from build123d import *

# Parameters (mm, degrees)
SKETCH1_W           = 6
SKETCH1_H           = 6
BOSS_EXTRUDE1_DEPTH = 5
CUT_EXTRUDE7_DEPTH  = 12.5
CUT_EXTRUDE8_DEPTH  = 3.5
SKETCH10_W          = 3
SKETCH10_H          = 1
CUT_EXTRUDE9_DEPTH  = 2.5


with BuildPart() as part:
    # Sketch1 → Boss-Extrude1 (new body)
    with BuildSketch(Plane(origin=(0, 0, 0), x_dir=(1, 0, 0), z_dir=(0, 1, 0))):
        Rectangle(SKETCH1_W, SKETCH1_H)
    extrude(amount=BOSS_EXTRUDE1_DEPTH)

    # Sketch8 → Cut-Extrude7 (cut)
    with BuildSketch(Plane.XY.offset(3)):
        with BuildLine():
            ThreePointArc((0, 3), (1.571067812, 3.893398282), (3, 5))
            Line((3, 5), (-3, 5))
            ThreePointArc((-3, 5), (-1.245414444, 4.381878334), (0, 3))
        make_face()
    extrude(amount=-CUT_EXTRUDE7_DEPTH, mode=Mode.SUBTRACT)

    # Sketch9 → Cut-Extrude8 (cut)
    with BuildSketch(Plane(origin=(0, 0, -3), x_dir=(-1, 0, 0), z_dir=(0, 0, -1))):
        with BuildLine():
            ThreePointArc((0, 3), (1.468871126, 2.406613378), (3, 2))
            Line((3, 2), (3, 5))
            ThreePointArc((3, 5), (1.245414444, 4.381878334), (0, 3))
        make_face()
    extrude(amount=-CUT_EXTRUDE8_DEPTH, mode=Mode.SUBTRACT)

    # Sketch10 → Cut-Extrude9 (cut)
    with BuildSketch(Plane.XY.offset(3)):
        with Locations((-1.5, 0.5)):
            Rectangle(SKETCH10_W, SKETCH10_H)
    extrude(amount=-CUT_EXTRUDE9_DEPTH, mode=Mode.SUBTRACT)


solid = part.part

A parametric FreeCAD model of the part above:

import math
import FreeCAD as App
import Part
import Sketcher
from FreeCAD import Vector
Q = App.Units.Quantity

doc = App.newDocument("Part")
params = doc.addObject("Spreadsheet::Sheet", "Params")
for row, (alias, value) in enumerate([
    ("sketch1_width", "6 mm"),
    ("pad1_length", "5 mm"),
    ("sketch2_width", "6 mm"),
    ("pocket1_length", "12.5 mm"),
    ("sketch3_height", "3 mm"),
    ("pocket2_length", "3.5 mm"),
    ("sketch4_width", "3 mm"),
    ("sketch4_height", "1 mm"),
    ("pocket3_length", "2.5 mm"),
], start=1):
    params.set(f"A{row}", alias)
    params.set(f"B{row}", "=" + value)
    params.setAlias(f"B{row}", alias)

body = doc.addObject("PartDesign::Body", "Body")

# Sketch on XZ plane
sketch1 = body.newObject("Sketcher::SketchObject", "Sketch")
sketch1.AttachmentSupport = (doc.getObject("XZ_Plane"), [""])
sketch1.MapMode = "FlatFace"
sketch1.addGeometry([
    Part.LineSegment(Vector(-3, -3, 0), Vector(-3, 3, 0)),
    Part.LineSegment(Vector(-3, 3, 0), Vector(3, 3, 0)),
    Part.LineSegment(Vector(3, 3, 0), Vector(3, -3, 0)),
    Part.LineSegment(Vector(3, -3, 0), Vector(-3, -3, 0)),
], False)
sketch1.addConstraint([
    Sketcher.Constraint("Coincident", 0, 2, 1, 1),
    Sketcher.Constraint("Coincident", 1, 2, 2, 1),
    Sketcher.Constraint("Coincident", 2, 2, 3, 1),
    Sketcher.Constraint("Coincident", 3, 2, 0, 1),
    Sketcher.Constraint("Vertical", 0),
    Sketcher.Constraint("Horizontal", 1),
    Sketcher.Constraint("Vertical", 2),
    Sketcher.Constraint("Horizontal", 3),
    Sketcher.Constraint("Symmetric", 0, 2, 2, 2, -1, 1),
    Sketcher.Constraint("Equal", 3, 0),
    Sketcher.Constraint("DistanceX", 1, 1, 1, 2, Q("6 mm")),
])
sketch1.setExpression("Constraints[10]", "Params.sketch1_width")
pad1 = body.newObject("PartDesign::Pad", "Pad")
pad1.Profile = sketch1
pad1.setExpression("Length", "Params.pad1_length")
pad1.Reversed = True

# Sketch on XY plane
sketch2 = body.newObject("Sketcher::SketchObject", "Sketch001")
sketch2.AttachmentSupport = (doc.getObject("XY_Plane"), [""])
sketch2.MapMode = "FlatFace"
sketch2.AttachmentOffset = App.Placement(Vector(0, 0, 3), App.Rotation())
sketch2.addGeometry([
    Part.ArcOfCircle(Part.Circle(Vector(-5.5, 14.5, 0), Vector(0, 0, 1), 12.7), math.radians(-64.44), math.radians(-48.18)),
    Part.LineSegment(Vector(3, 5, 0), Vector(-3, 5, 0)),
    Part.ArcOfCircle(Part.Circle(Vector(-3.3, 1.2, 0), Vector(0, 0, 1), 3.8), math.radians(28), math.radians(85)),
], False)
sketch2.addConstraint([
    Sketcher.Constraint("Coincident", 0, 2, 1, 1),
    Sketcher.Constraint("Coincident", 1, 2, 2, 2),
    Sketcher.Constraint("Coincident", 2, 1, 0, 1),
    Sketcher.Constraint("Horizontal", 1),
    Sketcher.Constraint("PointOnObject", 2, 1, -2),
    Sketcher.Constraint("DistanceX", 1, 2, 1, 1, Q("6 mm")),
    Sketcher.Constraint("DistanceX", -1, 1, 0, 2, Q("3 mm")),
    Sketcher.Constraint("DistanceY", -1, 1, 0, 2, Q("5 mm")),
    Sketcher.Constraint("DistanceY", -1, 1, 2, 1, Q("3 mm")),
    Sketcher.Constraint("DistanceX", 0, 3, -1, 1, Q("5.5 mm")),
    Sketcher.Constraint("Radius", 2, Q("3.770089 mm")),
])
sketch2.setExpression("Constraints[5]", "Params.sketch2_width")
pocket1 = body.newObject("PartDesign::Pocket", "Pocket")
pocket1.Profile = sketch2
pocket1.setExpression("Length", "Params.pocket1_length")

# Sketch on XY plane
sketch3 = body.newObject("Sketcher::SketchObject", "Sketch002")
sketch3.AttachmentSupport = (doc.getObject("XY_Plane"), [""])
sketch3.MapMode = "FlatFace"
sketch3.AttachmentOffset = App.Placement(Vector(0, 0, -3), App.Rotation())
sketch3.addGeometry([
    Part.ArcOfCircle(Part.Circle(Vector(-5.5, 14.5, 0), Vector(0, 0, 1), 12.7), math.radians(-78.69), math.radians(-64.44)),
    Part.LineSegment(Vector(-3, 2, 0), Vector(-3, 5, 0)),
    Part.ArcOfCircle(Part.Circle(Vector(-3.3, 1.2, 0), Vector(0, 0, 1), 3.8), math.radians(28), math.radians(85)),
], False)
sketch3.addConstraint([
    Sketcher.Constraint("Coincident", 0, 1, 1, 1),
    Sketcher.Constraint("Coincident", 1, 2, 2, 2),
    Sketcher.Constraint("Coincident", 2, 1, 0, 2),
    Sketcher.Constraint("Vertical", 1),
    Sketcher.Constraint("PointOnObject", 2, 1, -2),
    Sketcher.Constraint("DistanceY", 1, 1, 1, 2, Q("3 mm")),
    Sketcher.Constraint("DistanceX", 0, 1, -1, 1, Q("3 mm")),
    Sketcher.Constraint("DistanceY", -1, 1, 0, 1, Q("2 mm")),
    Sketcher.Constraint("DistanceY", -1, 1, 2, 1, Q("3 mm")),
    Sketcher.Constraint("DistanceX", 0, 3, -1, 1, Q("5.5 mm")),
    Sketcher.Constraint("Radius", 2, Q("3.770089 mm")),
])
sketch3.setExpression("Constraints[5]", "Params.sketch3_height")
pocket2 = body.newObject("PartDesign::Pocket", "Pocket001")
pocket2.Profile = sketch3
pocket2.setExpression("Length", "Params.pocket2_length")
pocket2.Reversed = True

# Sketch on XY plane
sketch4 = body.newObject("Sketcher::SketchObject", "Sketch003")
sketch4.AttachmentSupport = (doc.getObject("XY_Plane"), [""])
sketch4.MapMode = "FlatFace"
sketch4.AttachmentOffset = App.Placement(Vector(0, 0, 3), App.Rotation())
sketch4.addGeometry([
    Part.LineSegment(Vector(-3, 1, 0), Vector(-3, 0, 0)),
    Part.LineSegment(Vector(-3, 0, 0), Vector(0, 0, 0)),
    Part.LineSegment(Vector(0, 0, 0), Vector(0, 1, 0)),
    Part.LineSegment(Vector(0, 1, 0), Vector(-3, 1, 0)),
], False)
sketch4.addConstraint([
    Sketcher.Constraint("Coincident", 0, 2, 1, 1),
    Sketcher.Constraint("Coincident", 1, 2, 2, 1),
    Sketcher.Constraint("Coincident", 2, 2, 3, 1),
    Sketcher.Constraint("Coincident", 3, 2, 0, 1),
    Sketcher.Constraint("Vertical", 0),
    Sketcher.Constraint("Horizontal", 1),
    Sketcher.Constraint("Vertical", 2),
    Sketcher.Constraint("Horizontal", 3),
    Sketcher.Constraint("Coincident", 1, 2, -1, 1),
    Sketcher.Constraint("DistanceX", 1, 1, 1, 2, Q("3 mm")),
    Sketcher.Constraint("DistanceY", 0, 2, 0, 1, Q("1 mm")),
])
sketch4.setExpression("Constraints[9]", "Params.sketch4_width")
sketch4.setExpression("Constraints[10]", "Params.sketch4_height")
pocket3 = body.newObject("PartDesign::Pocket", "Pocket002")
pocket3.Profile = sketch4
pocket3.setExpression("Length", "Params.pocket3_length")

doc.recompute()
